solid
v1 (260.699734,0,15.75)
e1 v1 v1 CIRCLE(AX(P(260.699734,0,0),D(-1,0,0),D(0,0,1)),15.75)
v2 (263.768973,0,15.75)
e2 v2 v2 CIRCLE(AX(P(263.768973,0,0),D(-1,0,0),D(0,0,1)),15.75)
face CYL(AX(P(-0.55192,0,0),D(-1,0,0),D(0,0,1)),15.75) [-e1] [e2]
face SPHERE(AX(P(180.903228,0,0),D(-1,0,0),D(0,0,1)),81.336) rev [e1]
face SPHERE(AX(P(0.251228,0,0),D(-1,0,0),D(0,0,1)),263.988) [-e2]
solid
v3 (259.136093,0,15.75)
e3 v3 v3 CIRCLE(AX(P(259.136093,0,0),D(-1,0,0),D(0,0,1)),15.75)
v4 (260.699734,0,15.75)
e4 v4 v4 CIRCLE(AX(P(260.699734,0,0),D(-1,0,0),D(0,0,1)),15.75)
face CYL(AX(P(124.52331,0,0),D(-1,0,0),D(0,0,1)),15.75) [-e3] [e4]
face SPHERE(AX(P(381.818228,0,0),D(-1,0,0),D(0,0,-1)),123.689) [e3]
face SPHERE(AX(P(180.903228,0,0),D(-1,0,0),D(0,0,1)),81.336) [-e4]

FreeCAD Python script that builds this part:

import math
import FreeCAD as App
import Part
import Sketcher

doc = App.newDocument("Part")
body = doc.addObject("PartDesign::Body", "Body")

# Sketch on XZ plane
sketch1 = body.newObject("Sketcher::SketchObject", "Sketch")
sketch1.AttachmentSupport = (doc.getObject("XZ_Plane"), [""])
sketch1.MapMode = "FlatFace"
sketch1.addGeometry([
    Part.ArcOfCircle(Part.Circle(App.Vector(381.8, 0, 0), App.Vector(0, 0, 1), 123.7), math.radians(-180), math.radians(-172.68)),
    Part.LineSegment(App.Vector(258.1, 0, 0), App.Vector(262.2, 0, 0)),
    Part.ArcOfCircle(Part.Circle(App.Vector(180.9, 0, 0), App.Vector(0, 0, 1), 81.3), math.radians(-11.17), math.radians(0)),
    Part.LineSegment(App.Vector(260.7, -15.8, 0), App.Vector(259.1, -15.8, 0)),
], False)
sketch1.addConstraint([
    Sketcher.Constraint("Coincident", 0, 1, 1, 1),
    Sketcher.Constraint("Coincident", 1, 2, 2, 2),
    Sketcher.Constraint("Coincident", 2, 1, 3, 1),
    Sketcher.Constraint("Coincident", 3, 2, 0, 2),
    Sketcher.Constraint("Horizontal", 1),
    Sketcher.Constraint("Horizontal", 3),
    Sketcher.Constraint("PointOnObject", 0, 3, -1),
    Sketcher.Constraint("PointOnObject", 2, 3, -1),
    Sketcher.Constraint("PointOnObject", 0, 1, -1),
    Sketcher.Constraint("Radius", 0, 123.689),
    Sketcher.Constraint("Radius", 2, 81.336),
    Sketcher.Constraint("DistanceX", 1, 1, 1, 2, 4.11),
    Sketcher.Constraint("DistanceY", 2, 1, -1, 1, 15.75),
    Sketcher.Constraint("DistanceX", -1, 1, 0, 3, 381.818228),
])
revolution = body.newObject("PartDesign::Revolution", "Revolution")
revolution.Profile = sketch1
revolution.ReferenceAxis = (sketch1, ["H_Axis"])
revolution.Angle = 360
body2 = doc.addObject("PartDesign::Body", "Body001")

# Sketch on XZ plane
sketch2 = body2.newObject("Sketcher::SketchObject", "Sketch001")
sketch2.AttachmentSupport = (doc.getObject("XZ_Plane001"), [""])
sketch2.MapMode = "FlatFace"
sketch2.addGeometry([
    Part.LineSegment(App.Vector(263.8, -15.8, 0), App.Vector(260.7, -15.8, 0)),
    Part.ArcOfCircle(Part.Circle(App.Vector(180.9, 0, 0), App.Vector(0, 0, 1), 81.3), math.radians(-11.17), math.radians(0)),
    Part.LineSegment(App.Vector(262.2, 0, 0), App.Vector(264.2, 0, 0)),
    Part.ArcOfCircle(Part.Circle(App.Vector(0.3, 0, 0), App.Vector(0, 0, 1), 264), math.radians(-3.42), math.radians(0)),
], False)
sketch2.addConstraint([
    Sketcher.Constraint("Coincident", 0, 2, 1, 1),
    Sketcher.Constraint("Coincident", 1, 2, 2, 1),
    Sketcher.Constraint("Coincident", 2, 2, 3, 2),
    Sketcher.Constraint("Coincident", 3, 1, 0, 1),
    Sketcher.Constraint("Horizontal", 0),
    Sketcher.Constraint("Horizontal", 2),
    Sketcher.Constraint("PointOnObject", 1, 3, -1),
    Sketcher.Constraint("PointOnObject", 3, 3, -1),
    Sketcher.Constraint("PointOnObject", 1, 2, -1),
    Sketcher.Constraint("DistanceX", 2, 1, 2, 2, 2.0),
    Sketcher.Constraint("Radius", 1, 81.336),
    Sketcher.Constraint("Radius", 3, 263.988),
    Sketcher.Constraint("DistanceY", 0, 2, -1, 1, 15.75),
    Sketcher.Constraint("DistanceX", -1, 1, 1, 3, 180.903228),
])
revolution2 = body2.newObject("PartDesign::Revolution", "Revolution001")
revolution2.Profile = sketch2
revolution2.ReferenceAxis = (sketch2, ["H_Axis"])
revolution2.Angle = 360

doc.recompute()
